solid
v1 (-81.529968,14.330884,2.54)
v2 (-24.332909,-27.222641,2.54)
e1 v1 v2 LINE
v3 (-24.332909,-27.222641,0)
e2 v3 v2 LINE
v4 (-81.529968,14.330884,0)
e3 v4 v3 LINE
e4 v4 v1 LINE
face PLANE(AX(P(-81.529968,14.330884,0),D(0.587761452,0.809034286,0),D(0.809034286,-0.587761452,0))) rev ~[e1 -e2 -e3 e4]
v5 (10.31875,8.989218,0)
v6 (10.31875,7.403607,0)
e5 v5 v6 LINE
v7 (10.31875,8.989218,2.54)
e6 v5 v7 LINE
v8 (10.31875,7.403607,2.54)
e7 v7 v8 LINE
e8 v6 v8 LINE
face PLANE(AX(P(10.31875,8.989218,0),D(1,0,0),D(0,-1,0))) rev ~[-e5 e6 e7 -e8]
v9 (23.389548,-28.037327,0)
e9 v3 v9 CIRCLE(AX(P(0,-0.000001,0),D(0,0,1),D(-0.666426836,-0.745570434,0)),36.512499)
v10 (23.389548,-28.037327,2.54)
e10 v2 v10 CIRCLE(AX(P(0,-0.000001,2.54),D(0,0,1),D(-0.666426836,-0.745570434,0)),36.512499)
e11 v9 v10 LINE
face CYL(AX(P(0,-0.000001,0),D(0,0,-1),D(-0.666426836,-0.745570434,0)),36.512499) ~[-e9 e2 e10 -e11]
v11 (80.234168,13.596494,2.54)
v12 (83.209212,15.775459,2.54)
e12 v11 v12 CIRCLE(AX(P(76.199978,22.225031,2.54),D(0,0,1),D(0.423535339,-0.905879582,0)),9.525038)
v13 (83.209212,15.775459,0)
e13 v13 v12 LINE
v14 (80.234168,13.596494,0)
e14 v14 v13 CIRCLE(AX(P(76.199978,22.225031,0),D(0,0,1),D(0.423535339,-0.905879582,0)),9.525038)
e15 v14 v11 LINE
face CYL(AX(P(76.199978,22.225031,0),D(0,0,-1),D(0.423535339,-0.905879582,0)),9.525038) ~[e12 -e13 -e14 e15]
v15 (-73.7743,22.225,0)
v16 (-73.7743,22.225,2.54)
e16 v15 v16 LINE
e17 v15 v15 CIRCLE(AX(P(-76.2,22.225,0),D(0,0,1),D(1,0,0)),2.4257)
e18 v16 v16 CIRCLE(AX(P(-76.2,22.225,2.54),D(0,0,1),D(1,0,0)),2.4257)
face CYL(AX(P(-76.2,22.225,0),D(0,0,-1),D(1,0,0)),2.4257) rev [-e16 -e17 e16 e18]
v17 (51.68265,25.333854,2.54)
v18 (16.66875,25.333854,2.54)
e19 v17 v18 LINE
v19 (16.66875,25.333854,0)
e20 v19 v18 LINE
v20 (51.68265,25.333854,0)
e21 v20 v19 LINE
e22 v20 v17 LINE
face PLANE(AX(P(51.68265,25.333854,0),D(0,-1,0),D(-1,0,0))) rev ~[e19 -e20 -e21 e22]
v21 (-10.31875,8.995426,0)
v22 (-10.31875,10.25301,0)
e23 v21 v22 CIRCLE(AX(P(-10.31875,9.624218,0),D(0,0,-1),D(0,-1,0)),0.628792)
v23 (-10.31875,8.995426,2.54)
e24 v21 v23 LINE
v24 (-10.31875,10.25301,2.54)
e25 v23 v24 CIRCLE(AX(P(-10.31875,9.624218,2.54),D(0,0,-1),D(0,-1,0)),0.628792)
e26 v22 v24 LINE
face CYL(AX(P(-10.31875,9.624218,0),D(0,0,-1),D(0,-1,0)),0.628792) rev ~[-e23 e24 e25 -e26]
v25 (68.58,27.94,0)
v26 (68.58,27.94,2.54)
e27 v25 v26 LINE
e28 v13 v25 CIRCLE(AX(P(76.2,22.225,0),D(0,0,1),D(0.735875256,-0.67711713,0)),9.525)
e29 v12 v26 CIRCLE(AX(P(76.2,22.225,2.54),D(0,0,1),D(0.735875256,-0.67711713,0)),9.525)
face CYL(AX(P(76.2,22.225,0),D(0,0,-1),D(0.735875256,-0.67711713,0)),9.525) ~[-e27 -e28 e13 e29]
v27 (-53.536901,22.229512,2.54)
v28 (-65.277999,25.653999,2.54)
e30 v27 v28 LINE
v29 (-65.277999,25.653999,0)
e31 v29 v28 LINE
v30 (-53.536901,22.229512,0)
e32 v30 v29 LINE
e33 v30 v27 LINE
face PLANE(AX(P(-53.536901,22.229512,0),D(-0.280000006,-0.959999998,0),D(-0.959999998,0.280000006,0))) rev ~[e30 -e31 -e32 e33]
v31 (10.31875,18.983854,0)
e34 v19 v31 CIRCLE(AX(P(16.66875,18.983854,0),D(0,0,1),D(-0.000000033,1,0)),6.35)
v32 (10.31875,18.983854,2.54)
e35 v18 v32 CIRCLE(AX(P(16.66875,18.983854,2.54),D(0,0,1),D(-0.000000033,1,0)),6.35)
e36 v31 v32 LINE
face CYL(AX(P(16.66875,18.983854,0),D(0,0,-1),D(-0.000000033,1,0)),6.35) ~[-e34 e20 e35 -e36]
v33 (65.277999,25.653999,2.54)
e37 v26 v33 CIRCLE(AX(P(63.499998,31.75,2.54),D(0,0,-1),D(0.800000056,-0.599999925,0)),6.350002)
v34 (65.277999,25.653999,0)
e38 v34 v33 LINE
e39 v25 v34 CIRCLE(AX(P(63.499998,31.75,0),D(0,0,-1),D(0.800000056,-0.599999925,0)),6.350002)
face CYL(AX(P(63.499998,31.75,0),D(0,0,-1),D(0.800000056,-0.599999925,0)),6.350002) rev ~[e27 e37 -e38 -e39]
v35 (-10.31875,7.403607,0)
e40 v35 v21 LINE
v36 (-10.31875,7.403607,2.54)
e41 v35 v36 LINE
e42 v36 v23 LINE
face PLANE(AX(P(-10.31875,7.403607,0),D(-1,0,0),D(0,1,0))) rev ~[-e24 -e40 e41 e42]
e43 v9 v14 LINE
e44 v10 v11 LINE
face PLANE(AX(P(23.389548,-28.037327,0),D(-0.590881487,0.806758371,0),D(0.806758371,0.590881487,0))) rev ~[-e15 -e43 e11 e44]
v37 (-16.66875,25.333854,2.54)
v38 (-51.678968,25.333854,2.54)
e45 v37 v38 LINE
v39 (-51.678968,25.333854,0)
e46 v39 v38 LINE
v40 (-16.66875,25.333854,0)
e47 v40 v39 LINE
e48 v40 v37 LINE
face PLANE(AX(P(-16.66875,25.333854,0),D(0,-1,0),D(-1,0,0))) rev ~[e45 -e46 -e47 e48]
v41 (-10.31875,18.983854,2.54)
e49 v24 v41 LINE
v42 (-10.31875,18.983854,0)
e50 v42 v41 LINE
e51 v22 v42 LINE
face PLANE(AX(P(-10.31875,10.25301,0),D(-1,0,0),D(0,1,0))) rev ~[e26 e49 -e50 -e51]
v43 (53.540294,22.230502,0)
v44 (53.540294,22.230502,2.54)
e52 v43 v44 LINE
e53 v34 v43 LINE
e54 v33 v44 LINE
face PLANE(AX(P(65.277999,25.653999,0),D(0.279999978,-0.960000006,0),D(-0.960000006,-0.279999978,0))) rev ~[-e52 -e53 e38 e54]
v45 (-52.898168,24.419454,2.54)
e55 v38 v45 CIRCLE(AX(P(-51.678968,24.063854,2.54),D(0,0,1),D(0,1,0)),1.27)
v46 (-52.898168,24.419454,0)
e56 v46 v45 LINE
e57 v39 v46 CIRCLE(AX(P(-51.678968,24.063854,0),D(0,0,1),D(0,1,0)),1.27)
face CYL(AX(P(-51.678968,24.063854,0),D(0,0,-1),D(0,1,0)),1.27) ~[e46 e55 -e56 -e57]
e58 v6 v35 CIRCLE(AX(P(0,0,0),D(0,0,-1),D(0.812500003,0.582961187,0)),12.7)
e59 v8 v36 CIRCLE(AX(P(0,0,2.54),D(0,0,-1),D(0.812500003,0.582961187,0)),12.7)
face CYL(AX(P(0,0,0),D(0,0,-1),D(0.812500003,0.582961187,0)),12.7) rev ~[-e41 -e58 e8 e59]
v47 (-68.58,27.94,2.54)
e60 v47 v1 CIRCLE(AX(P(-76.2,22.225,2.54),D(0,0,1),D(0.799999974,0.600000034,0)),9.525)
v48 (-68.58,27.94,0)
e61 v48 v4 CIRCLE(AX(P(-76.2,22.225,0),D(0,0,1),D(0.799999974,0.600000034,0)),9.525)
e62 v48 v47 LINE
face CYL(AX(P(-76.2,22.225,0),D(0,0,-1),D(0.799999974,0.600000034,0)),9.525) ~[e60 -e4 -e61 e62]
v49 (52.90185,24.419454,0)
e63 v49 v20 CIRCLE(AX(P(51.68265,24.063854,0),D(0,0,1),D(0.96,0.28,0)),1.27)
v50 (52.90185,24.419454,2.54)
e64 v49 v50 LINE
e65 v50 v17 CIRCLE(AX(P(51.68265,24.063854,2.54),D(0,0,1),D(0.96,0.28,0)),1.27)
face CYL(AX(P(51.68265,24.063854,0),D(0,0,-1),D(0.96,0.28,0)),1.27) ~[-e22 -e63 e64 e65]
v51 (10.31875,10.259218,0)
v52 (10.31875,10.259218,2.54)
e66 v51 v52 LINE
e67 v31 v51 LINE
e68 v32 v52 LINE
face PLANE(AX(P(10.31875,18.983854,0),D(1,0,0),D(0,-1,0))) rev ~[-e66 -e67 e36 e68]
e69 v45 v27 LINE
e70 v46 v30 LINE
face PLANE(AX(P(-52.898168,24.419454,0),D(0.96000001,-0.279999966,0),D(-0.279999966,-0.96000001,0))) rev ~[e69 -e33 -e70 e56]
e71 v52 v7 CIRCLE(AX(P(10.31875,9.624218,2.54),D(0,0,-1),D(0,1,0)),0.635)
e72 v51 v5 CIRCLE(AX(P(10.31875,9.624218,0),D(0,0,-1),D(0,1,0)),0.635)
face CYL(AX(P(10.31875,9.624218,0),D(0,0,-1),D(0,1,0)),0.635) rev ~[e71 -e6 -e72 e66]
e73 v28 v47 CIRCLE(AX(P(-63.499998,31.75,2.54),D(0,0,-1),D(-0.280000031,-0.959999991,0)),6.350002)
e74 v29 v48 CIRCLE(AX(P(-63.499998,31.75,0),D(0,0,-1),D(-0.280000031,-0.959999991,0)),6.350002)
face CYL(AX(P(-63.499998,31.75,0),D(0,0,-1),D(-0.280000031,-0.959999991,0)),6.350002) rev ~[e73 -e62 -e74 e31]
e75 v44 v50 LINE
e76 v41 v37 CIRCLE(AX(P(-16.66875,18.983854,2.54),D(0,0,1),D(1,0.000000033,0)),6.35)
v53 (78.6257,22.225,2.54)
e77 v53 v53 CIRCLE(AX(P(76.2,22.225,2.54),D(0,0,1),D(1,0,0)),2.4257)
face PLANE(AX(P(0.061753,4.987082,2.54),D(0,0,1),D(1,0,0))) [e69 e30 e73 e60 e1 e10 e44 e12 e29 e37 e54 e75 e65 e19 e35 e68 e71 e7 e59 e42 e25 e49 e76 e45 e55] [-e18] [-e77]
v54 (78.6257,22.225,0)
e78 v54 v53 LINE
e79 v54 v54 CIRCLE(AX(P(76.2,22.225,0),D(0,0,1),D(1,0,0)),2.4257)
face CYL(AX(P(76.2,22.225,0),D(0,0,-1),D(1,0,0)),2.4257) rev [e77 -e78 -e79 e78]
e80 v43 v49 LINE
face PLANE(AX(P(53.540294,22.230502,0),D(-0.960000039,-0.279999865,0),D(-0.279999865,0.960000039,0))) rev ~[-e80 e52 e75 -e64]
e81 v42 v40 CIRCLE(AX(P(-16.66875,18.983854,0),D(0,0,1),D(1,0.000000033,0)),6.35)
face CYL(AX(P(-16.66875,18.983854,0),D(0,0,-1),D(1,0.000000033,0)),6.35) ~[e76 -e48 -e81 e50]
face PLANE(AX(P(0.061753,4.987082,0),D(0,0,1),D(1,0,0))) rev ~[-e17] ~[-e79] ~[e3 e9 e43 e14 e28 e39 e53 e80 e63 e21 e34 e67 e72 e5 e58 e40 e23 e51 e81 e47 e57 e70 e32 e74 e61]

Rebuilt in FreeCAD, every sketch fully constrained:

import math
import FreeCAD as App
import Part
import Sketcher
Q = App.Units.Quantity

doc = App.newDocument("Part")
body = doc.addObject("PartDesign::Body", "Body")

sketch1 = body.newObject("Sketcher::SketchObject", "Sketch")
sketch1.AttachmentSupport = (doc.getObject("XY_Plane"), [""])
sketch1.MapMode = "FlatFace"
sketch1.addGeometry(Part.ArcOfCircle(Part.Circle(App.Vector(0, 0, 0), App.Vector(0, 0, 1), 12.7), math.radians(144.340913), math.radians(395.659087)), False)
sketch1.addGeometry(Part.LineSegment(App.Vector(-10.31875, 7.403607, 0), App.Vector(-10.31875, 8.995426, 0)), False)
sketch1.addGeometry(Part.ArcOfCircle(Part.Circle(App.Vector(-10.31875, 9.624218, 0), App.Vector(0, 0, 1), 0.628792), math.radians(90), math.radians(270)), False)
sketch1.addGeometry(Part.LineSegment(App.Vector(-10.31875, 10.25301, 0), App.Vector(-10.31875, 18.983854, 0)), False)
sketch1.addGeometry(Part.ArcOfCircle(Part.Circle(App.Vector(-16.66875, 18.983854, 0), App.Vector(0, 0, 1), 6.35), math.radians(0.000002), math.radians(89.999998)), False)
sketch1.addGeometry(Part.LineSegment(App.Vector(-16.66875, 25.333854, 0), App.Vector(-51.678968, 25.333854, 0)), False)
sketch1.addGeometry(Part.ArcOfCircle(Part.Circle(App.Vector(-51.678968, 24.063854, 0), App.Vector(0, 0, 1), 1.27), math.radians(90), math.radians(163.739795)), False)
sketch1.addGeometry(Part.LineSegment(App.Vector(-52.898168, 24.419454, 0), App.Vector(-53.536901, 22.229512, 0)), False)
sketch1.addGeometry(Part.LineSegment(App.Vector(-53.536901, 22.229512, 0), App.Vector(-65.277999, 25.653999, 0)), False)
sketch1.addGeometry(Part.ArcOfCircle(Part.Circle(App.Vector(-63.499998, 31.75, 0), App.Vector(0, 0, 1), 6.350002), math.radians(-143.130108), math.radians(-106.260207)), False)
sketch1.addGeometry(Part.ArcOfCircle(Part.Circle(App.Vector(-76.2, 22.225, 0), App.Vector(0, 0, 1), 9.525), math.radians(36.8699), math.radians(235.97347)), False)
sketch1.addGeometry(Part.LineSegment(App.Vector(-81.529968, 14.330884, 0), App.Vector(-24.332909, -27.222641, 0)), False)
sketch1.addGeometry(Part.ArcOfCircle(Part.Circle(App.Vector(0, -0.000001, 0), App.Vector(0, 0, 1), 36.512499), math.radians(-131.791882), math.radians(-50.164159)), False)
sketch1.addGeometry(Part.LineSegment(App.Vector(23.389548, -28.037327, 0), App.Vector(80.234168, 13.596494, 0)), False)
sketch1.addGeometry(Part.ArcOfCircle(Part.Circle(App.Vector(76.199978, 22.225031, 0), App.Vector(0, 0, 1), 9.525038), math.radians(-64.94201), math.radians(-42.618823)), False)
sketch1.addGeometry(Part.ArcOfCircle(Part.Circle(App.Vector(76.2, 22.225, 0), App.Vector(0, 0, 1), 9.525), math.radians(-42.618774), math.radians(143.130101)), False)
sketch1.addGeometry(Part.ArcOfCircle(Part.Circle(App.Vector(63.499998, 31.75, 0), App.Vector(0, 0, 1), 6.350002), math.radians(-73.739793), math.radians(-36.869892)), False)
sketch1.addGeometry(Part.LineSegment(App.Vector(65.277999, 25.653999, 0), App.Vector(53.540294, 22.230502, 0)), False)
sketch1.addGeometry(Part.LineSegment(App.Vector(53.540294, 22.230502, 0), App.Vector(52.90185, 24.419454, 0)), False)
sketch1.addGeometry(Part.ArcOfCircle(Part.Circle(App.Vector(51.68265, 24.063854, 0), App.Vector(0, 0, 1), 1.27), math.radians(16.260205), math.radians(90)), False)
sketch1.addGeometry(Part.LineSegment(App.Vector(51.68265, 25.333854, 0), App.Vector(16.66875, 25.333854, 0)), False)
sketch1.addGeometry(Part.ArcOfCircle(Part.Circle(App.Vector(16.66875, 18.983854, 0), App.Vector(0, 0, 1), 6.35), math.radians(90.000002), math.radians(179.999998)), False)
sketch1.addGeometry(Part.LineSegment(App.Vector(10.31875, 18.983854, 0), App.Vector(10.31875, 10.259218, 0)), False)
sketch1.addGeometry(Part.ArcOfCircle(Part.Circle(App.Vector(10.31875, 9.624218, 0), App.Vector(0, 0, 1), 0.635), math.radians(-90), math.radians(90)), False)
sketch1.addGeometry(Part.LineSegment(App.Vector(10.31875, 8.989218, 0), App.Vector(10.31875, 7.403607, 0)), False)
sketch1.addGeometry(Part.Circle(App.Vector(-76.2, 22.225, 0), App.Vector(0, 0, 1), 2.4257), False)
sketch1.addGeometry(Part.Circle(App.Vector(76.2, 22.225, 0), App.Vector(0, 0, 1), 2.4257), False)
sketch1.addConstraint(Sketcher.Constraint("Coincident", 0, 1, 1, 1))
sketch1.addConstraint(Sketcher.Constraint("Coincident", 1, 2, 2, 2))
sketch1.addConstraint(Sketcher.Constraint("Coincident", 2, 1, 3, 1))
sketch1.addConstraint(Sketcher.Constraint("Coincident", 3, 2, 4, 1))
sketch1.addConstraint(Sketcher.Constraint("Coincident", 4, 2, 5, 1))
sketch1.addConstraint(Sketcher.Constraint("Coincident", 5, 2, 6, 1))
sketch1.addConstraint(Sketcher.Constraint("Coincident", 6, 2, 7, 1))
sketch1.addConstraint(Sketcher.Constraint("Coincident", 7, 2, 8, 1))
sketch1.addConstraint(Sketcher.Constraint("Coincident", 8, 2, 9, 2))
sketch1.addConstraint(Sketcher.Constraint("Coincident", 9, 1, 10, 1))
sketch1.addConstraint(Sketcher.Constraint("Coincident", 10, 2, 11, 1))
sketch1.addConstraint(Sketcher.Constraint("Coincident", 11, 2, 12, 1))
sketch1.addConstraint(Sketcher.Constraint("Coincident", 12, 2, 13, 1))
sketch1.addConstraint(Sketcher.Constraint("Coincident", 13, 2, 14, 1))
sketch1.addConstraint(Sketcher.Constraint("Coincident", 14, 2, 15, 1))
sketch1.addConstraint(Sketcher.Constraint("Coincident", 15, 2, 16, 2))
sketch1.addConstraint(Sketcher.Constraint("Coincident", 16, 1, 17, 1))
sketch1.addConstraint(Sketcher.Constraint("Coincident", 17, 2, 18, 1))
sketch1.addConstraint(Sketcher.Constraint("Coincident", 18, 2, 19, 1))
sketch1.addConstraint(Sketcher.Constraint("Coincident", 19, 2, 20, 1))
sketch1.addConstraint(Sketcher.Constraint("Coincident", 20, 2, 21, 1))
sketch1.addConstraint(Sketcher.Constraint("Coincident", 21, 2, 22, 1))
sketch1.addConstraint(Sketcher.Constraint("Coincident", 22, 2, 23, 2))
sketch1.addConstraint(Sketcher.Constraint("Coincident", 23, 1, 24, 1))
sketch1.addConstraint(Sketcher.Constraint("Coincident", 24, 2, 0, 2))
sketch1.addConstraint(Sketcher.Constraint("Vertical", 1))
sketch1.addConstraint(Sketcher.Constraint("Vertical", 3))
sketch1.addConstraint(Sketcher.Constraint("Horizontal", 5))
sketch1.addConstraint(Sketcher.Constraint("Horizontal", 20))
sketch1.addConstraint(Sketcher.Constraint("Vertical", 22))
sketch1.addConstraint(Sketcher.Constraint("Vertical", 24))
sketch1.addConstraint(Sketcher.Constraint("Coincident", 0, 3, -1, 1))
sketch1.addConstraint(Sketcher.Constraint("Coincident", 12, 3, -1, 1))
sketch1.addConstraint(Sketcher.Constraint("Coincident", 25, 3, 10, 3))
sketch1.addConstraint(Sketcher.Constraint("Coincident", 26, 3, 15, 3))
sketch1.addConstraint(Sketcher.Constraint("Radius", 0, Q("0.5 in")))
sketch1.addConstraint(Sketcher.Constraint("Radius", 4, Q("0.25 in")))
sketch1.addConstraint(Sketcher.Constraint("Radius", 6, Q("0.05 in")))
sketch1.addConstraint(Sketcher.Constraint("Radius", 9, Q("0.2500001 in")))
sketch1.addConstraint(Sketcher.Constraint("Radius", 16, Q("0.2500001 in")))
sketch1.addConstraint(Sketcher.Constraint("Radius", 19, Q("0.05 in")))
sketch1.addConstraint(Sketcher.Constraint("Radius", 21, Q("0.25 in")))
sketch1.addConstraint(Sketcher.Constraint("Diameter", 25, Q("0.191 in")))
sketch1.addConstraint(Sketcher.Constraint("Diameter", 26, Q("0.191 in")))
sketch1.addConstraint(Sketcher.Constraint("DistanceX", 10, 3, -1, 1, Q("3 in")))
sketch1.addConstraint(Sketcher.Constraint("DistanceX", -1, 1, 15, 3, Q("3 in")))
sketch1.addConstraint(Sketcher.Constraint("Radius", 10, Q("0.375 in")))
sketch1.addConstraint(Sketcher.Constraint("Radius", 12, Q("1.4375 in")))
sketch1.addConstraint(Sketcher.Constraint("Radius", 15, Q("0.375 in")))
sketch1.addConstraint(Sketcher.Constraint("Radius", 23, Q("0.025 in")))
sketch1.addConstraint(Sketcher.Constraint("DistanceX", 9, 3, -1, 1, Q("2.4999999 in")))
sketch1.addConstraint(Sketcher.Constraint("DistanceX", -1, 1, 16, 3, Q("2.4999999 in")))
sketch1.addConstraint(Sketcher.Constraint("DistanceX", 9, 1, -1, 1, Q("2.7 in")))
sketch1.addConstraint(Sketcher.Constraint("DistanceY", -1, 1, 9, 1, Q("1.1 in")))
sketch1.addConstraint(Sketcher.Constraint("DistanceX", -1, 1, 15, 2, Q("2.7 in")))
sketch1.addConstraint(Sketcher.Constraint("DistanceY", -1, 1, 15, 2, Q("1.1 in")))
sketch1.addConstraint(Sketcher.Constraint("DistanceX", 8, 2, -1, 1, Q("2.57 in")))
sketch1.addConstraint(Sketcher.Constraint("DistanceX", -1, 1, 16, 1, Q("2.57 in")))
sketch1.addConstraint(Sketcher.Constraint("DistanceX", 4, 3, 2, 3, Q("0.25 in")))
sketch1.addConstraint(Sketcher.Constraint("DistanceX", 23, 3, 21, 3, Q("0.25 in")))
sketch1.addConstraint(Sketcher.Constraint("DistanceX", 4, 3, 0, 1, Q("0.25 in")))
sketch1.addConstraint(Sketcher.Constraint("DistanceX", 4, 2, 3, 2, Q("0.25 in")))
sketch1.addConstraint(Sketcher.Constraint("DistanceY", 3, 2, 4, 2, Q("0.25 in")))
sketch1.addConstraint(Sketcher.Constraint("DistanceX", 23, 3, 20, 2, Q("0.25 in")))
sketch1.addConstraint(Sketcher.Constraint("DistanceY", 3, 2, 20, 2, Q("0.25 in")))
sketch1.addConstraint(Sketcher.Constraint("DistanceY", 21, 2, 20, 2, Q("0.25 in")))
sketch1.addConstraint(Sketcher.Constraint("DistanceX", 23, 1, 21, 3, Q("0.25 in")))
sketch1.addConstraint(Sketcher.Constraint("DistanceX", 20, 2, 20, 1, Q("1.3785 in")))
sketch1.addConstraint(Sketcher.Constraint("DistanceX", 2, 3, -1, 1, Q("0.40625 in")))
sketch1.addConstraint(Sketcher.Constraint("DistanceX", -1, 1, 21, 3, Q("0.65625 in")))
sketch1.addConstraint(Sketcher.Constraint("DistanceX", 6, 2, 6, 3, Q("0.048 in")))
sketch1.addConstraint(Sketcher.Constraint("DistanceX", 6, 2, 5, 2, Q("0.048 in")))
sketch1.addConstraint(Sketcher.Constraint("DistanceX", 19, 3, 18, 2, Q("0.048 in")))
sketch1.addConstraint(Sketcher.Constraint("DistanceX", 19, 2, 18, 2, Q("0.048 in")))
sketch1.addConstraint(Sketcher.Constraint("Radius", 2, Q("0.628792 mm")))
sketch1.addConstraint(Sketcher.Constraint("Radius", 14, Q("9.525038 mm")))
sketch1.addConstraint(Sketcher.Constraint("DistanceY", 1, 1, 1, 2, Q("1.591819 mm")))
sketch1.addConstraint(Sketcher.Constraint("DistanceY", 24, 2, 24, 1, Q("1.585611 mm")))
sketch1.addConstraint(Sketcher.Constraint("DistanceX", 7, 2, -1, 1, Q("53.536901 mm")))
sketch1.addConstraint(Sketcher.Constraint("DistanceX", 23, 3, 12, 2, Q("13.070798 mm")))
sketch1.addConstraint(Sketcher.Constraint("DistanceY", 17, 2, 16, 3, Q("9.519498 mm")))
sketch1.addConstraint(Sketcher.Constraint("Distance", 7, Q("2.28119 mm")))
sketch1.addConstraint(Sketcher.Constraint("Distance", 8, Q("12.23031 mm")))
sketch1.addConstraint(Sketcher.Constraint("Distance", 11, Q("70.697942 mm")))
sketch1.addConstraint(Sketcher.Constraint("Distance", 18, Q("2.280158 mm")))
sketch1.addConstraint(Sketcher.Constraint("DistanceX", 5, 2, 5, 1, Q("35.010218 mm")))
sketch1.addConstraint(Sketcher.Constraint("DistanceY", -1, 1, 14, 3, Q("22.225031 mm")))
sketch1.addConstraint(Sketcher.Constraint("DistanceX", 10, 2, -1, 1, Q("81.529968 mm")))
sketch1.addConstraint(Sketcher.Constraint("DistanceX", -1, 1, 14, 2, Q("83.209212 mm")))
sketch1.addConstraint(Sketcher.Constraint("DistanceX", 14, 3, 13, 2, Q("4.03419 mm")))
pad1 = body.newObject("PartDesign::Pad", "Pad")
pad1.Profile = sketch1
pad1.Length = Q("0.1 in")

doc.recompute()
